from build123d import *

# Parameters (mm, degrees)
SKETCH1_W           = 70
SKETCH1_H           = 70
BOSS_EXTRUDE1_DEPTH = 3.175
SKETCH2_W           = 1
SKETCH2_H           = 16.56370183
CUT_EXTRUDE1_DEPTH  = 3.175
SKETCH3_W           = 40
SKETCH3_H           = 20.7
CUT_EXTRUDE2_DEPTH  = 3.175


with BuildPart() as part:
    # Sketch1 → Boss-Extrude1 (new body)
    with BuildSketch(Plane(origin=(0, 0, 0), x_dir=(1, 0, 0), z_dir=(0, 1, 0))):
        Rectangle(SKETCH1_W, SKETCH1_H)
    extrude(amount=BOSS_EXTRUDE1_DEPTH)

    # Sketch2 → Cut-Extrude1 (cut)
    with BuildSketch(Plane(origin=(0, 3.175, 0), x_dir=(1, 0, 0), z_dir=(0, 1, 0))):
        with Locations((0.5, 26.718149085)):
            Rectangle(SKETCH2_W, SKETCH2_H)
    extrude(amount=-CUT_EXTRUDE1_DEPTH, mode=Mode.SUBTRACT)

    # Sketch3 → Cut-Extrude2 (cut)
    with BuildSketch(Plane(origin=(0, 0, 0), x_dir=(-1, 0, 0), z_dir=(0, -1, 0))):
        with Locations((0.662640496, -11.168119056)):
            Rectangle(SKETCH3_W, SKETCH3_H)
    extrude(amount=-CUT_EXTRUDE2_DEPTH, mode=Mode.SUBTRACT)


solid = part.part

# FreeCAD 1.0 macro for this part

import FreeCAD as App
import Part
import Sketcher

V = App.Vector

doc = App.newDocument("Part")
body = doc.addObject("PartDesign::Body", "Body")

# Sketch on XZ plane
sketch1 = body.newObject("Sketcher::SketchObject", "Sketch")
sketch1.AttachmentSupport = (doc.getObject("XZ_Plane"), [""])
sketch1.MapMode = "FlatFace"
sketch1.addGeometry([
    Part.LineSegment(V(-35, -35, 0), V(-35, 35, 0)),
    Part.LineSegment(V(-35, 35, 0), V(35, 35, 0)),
    Part.LineSegment(V(35, 35, 0), V(35, -35, 0)),
    Part.LineSegment(V(35, -35, 0), V(-35, -35, 0)),
], False)
sketch1.addConstraint([
    Sketcher.Constraint("Coincident", 0, 2, 1, 1),
    Sketcher.Constraint("Coincident", 1, 2, 2, 1),
    Sketcher.Constraint("Coincident", 2, 2, 3, 1),
    Sketcher.Constraint("Coincident", 3, 2, 0, 1),
    Sketcher.Constraint("Vertical", 0),
    Sketcher.Constraint("Horizontal", 1),
    Sketcher.Constraint("Vertical", 2),
    Sketcher.Constraint("Horizontal", 3),
    Sketcher.Constraint("Symmetric", 0, 2, 2, 2, -1, 1),
    Sketcher.Constraint("Equal", 3, 0),
    Sketcher.Constraint("DistanceX", 1, 1, 1, 2, 70.0),
])
pad1 = body.newObject("PartDesign::Pad", "Pad")
pad1.Profile = sketch1
pad1.Length = 3.175
pad1.Reversed = True

# Sketch on XZ plane
sketch2 = body.newObject("Sketcher::SketchObject", "Sketch001")
sketch2.AttachmentSupport = (doc.getObject("XZ_Plane"), [""])
sketch2.MapMode = "FlatFace"
sketch2.AttachmentOffset = App.Placement(V(0, 0, -3.175), App.Rotation())
sketch2.addGeometry([
    Part.LineSegment(V(0, -35, 0), V(0, -18.4, 0)),
    Part.LineSegment(V(0, -18.4, 0), V(1, -18.4, 0)),
    Part.LineSegment(V(1, -18.4, 0), V(1, -35, 0)),
    Part.LineSegment(V(1, -35, 0), V(0, -35, 0)),
], False)
sketch2.addConstraint([
    Sketcher.Constraint("Coincident", 0, 2, 1, 1),
    Sketcher.Constraint("Coincident", 1, 2, 2, 1),
    Sketcher.Constraint("Coincident", 2, 2, 3, 1),
    Sketcher.Constraint("Coincident", 3, 2, 0, 1),
    Sketcher.Constraint("Vertical", 0),
    Sketcher.Constraint("Horizontal", 1),
    Sketcher.Constraint("Vertical", 2),
    Sketcher.Constraint("Horizontal", 3),
    Sketcher.Constraint("PointOnObject", 0, 2, -2),
    Sketcher.Constraint("DistanceX", 1, 1, 1, 2, 1.0),
    Sketcher.Constraint("DistanceY", 2, 2, -1, 1, 35.0),
    Sketcher.Constraint("DistanceY", 0, 1, 0, 2, 16.563702),
])
pocket1 = body.newObject("PartDesign::Pocket", "Pocket")
pocket1.Profile = sketch2
pocket1.Length = 3.175
pocket1.Reversed = True

# Sketch on XZ plane
sketch3 = body.newObject("Sketcher::SketchObject", "Sketch002")
sketch3.AttachmentSupport = (doc.getObject("XZ_Plane"), [""])
sketch3.MapMode = "FlatFace"
sketch3.addGeometry([
    Part.LineSegment(V(19, 1, 0), V(19, 22, 0)),
    Part.LineSegment(V(19, 22, 0), V(-21, 22, 0)),
    Part.LineSegment(V(-21, 22, 0), V(-21, 1, 0)),
    Part.LineSegment(V(-21, 1, 0), V(19, 1, 0)),
], False)
sketch3.addConstraint([
    Sketcher.Constraint("Coincident", 0, 2, 1, 1),
    Sketcher.Constraint("Coincident", 1, 2, 2, 1),
    Sketcher.Constraint("Coincident", 2, 2, 3, 1),
    Sketcher.Constraint("Coincident", 3, 2, 0, 1),
    Sketcher.Constraint("Vertical", 0),
    Sketcher.Constraint("Horizontal", 1),
    Sketcher.Constraint("Vertical", 2),
    Sketcher.Constraint("Horizontal", 3),
    Sketcher.Constraint("DistanceX", 1, 2, 1, 1, 40.0),
    Sketcher.Constraint("DistanceY", 0, 1, 0, 2, 20.7),
    Sketcher.Constraint("DistanceX", -1, 1, 0, 2, 19.33736),
    Sketcher.Constraint("DistanceY", -1, 1, 0, 2, 21.518119),
])
pocket2 = body.newObject("PartDesign::Pocket", "Pocket001")
pocket2.Profile = sketch3
pocket2.Length = 3.175

doc.recompute()
